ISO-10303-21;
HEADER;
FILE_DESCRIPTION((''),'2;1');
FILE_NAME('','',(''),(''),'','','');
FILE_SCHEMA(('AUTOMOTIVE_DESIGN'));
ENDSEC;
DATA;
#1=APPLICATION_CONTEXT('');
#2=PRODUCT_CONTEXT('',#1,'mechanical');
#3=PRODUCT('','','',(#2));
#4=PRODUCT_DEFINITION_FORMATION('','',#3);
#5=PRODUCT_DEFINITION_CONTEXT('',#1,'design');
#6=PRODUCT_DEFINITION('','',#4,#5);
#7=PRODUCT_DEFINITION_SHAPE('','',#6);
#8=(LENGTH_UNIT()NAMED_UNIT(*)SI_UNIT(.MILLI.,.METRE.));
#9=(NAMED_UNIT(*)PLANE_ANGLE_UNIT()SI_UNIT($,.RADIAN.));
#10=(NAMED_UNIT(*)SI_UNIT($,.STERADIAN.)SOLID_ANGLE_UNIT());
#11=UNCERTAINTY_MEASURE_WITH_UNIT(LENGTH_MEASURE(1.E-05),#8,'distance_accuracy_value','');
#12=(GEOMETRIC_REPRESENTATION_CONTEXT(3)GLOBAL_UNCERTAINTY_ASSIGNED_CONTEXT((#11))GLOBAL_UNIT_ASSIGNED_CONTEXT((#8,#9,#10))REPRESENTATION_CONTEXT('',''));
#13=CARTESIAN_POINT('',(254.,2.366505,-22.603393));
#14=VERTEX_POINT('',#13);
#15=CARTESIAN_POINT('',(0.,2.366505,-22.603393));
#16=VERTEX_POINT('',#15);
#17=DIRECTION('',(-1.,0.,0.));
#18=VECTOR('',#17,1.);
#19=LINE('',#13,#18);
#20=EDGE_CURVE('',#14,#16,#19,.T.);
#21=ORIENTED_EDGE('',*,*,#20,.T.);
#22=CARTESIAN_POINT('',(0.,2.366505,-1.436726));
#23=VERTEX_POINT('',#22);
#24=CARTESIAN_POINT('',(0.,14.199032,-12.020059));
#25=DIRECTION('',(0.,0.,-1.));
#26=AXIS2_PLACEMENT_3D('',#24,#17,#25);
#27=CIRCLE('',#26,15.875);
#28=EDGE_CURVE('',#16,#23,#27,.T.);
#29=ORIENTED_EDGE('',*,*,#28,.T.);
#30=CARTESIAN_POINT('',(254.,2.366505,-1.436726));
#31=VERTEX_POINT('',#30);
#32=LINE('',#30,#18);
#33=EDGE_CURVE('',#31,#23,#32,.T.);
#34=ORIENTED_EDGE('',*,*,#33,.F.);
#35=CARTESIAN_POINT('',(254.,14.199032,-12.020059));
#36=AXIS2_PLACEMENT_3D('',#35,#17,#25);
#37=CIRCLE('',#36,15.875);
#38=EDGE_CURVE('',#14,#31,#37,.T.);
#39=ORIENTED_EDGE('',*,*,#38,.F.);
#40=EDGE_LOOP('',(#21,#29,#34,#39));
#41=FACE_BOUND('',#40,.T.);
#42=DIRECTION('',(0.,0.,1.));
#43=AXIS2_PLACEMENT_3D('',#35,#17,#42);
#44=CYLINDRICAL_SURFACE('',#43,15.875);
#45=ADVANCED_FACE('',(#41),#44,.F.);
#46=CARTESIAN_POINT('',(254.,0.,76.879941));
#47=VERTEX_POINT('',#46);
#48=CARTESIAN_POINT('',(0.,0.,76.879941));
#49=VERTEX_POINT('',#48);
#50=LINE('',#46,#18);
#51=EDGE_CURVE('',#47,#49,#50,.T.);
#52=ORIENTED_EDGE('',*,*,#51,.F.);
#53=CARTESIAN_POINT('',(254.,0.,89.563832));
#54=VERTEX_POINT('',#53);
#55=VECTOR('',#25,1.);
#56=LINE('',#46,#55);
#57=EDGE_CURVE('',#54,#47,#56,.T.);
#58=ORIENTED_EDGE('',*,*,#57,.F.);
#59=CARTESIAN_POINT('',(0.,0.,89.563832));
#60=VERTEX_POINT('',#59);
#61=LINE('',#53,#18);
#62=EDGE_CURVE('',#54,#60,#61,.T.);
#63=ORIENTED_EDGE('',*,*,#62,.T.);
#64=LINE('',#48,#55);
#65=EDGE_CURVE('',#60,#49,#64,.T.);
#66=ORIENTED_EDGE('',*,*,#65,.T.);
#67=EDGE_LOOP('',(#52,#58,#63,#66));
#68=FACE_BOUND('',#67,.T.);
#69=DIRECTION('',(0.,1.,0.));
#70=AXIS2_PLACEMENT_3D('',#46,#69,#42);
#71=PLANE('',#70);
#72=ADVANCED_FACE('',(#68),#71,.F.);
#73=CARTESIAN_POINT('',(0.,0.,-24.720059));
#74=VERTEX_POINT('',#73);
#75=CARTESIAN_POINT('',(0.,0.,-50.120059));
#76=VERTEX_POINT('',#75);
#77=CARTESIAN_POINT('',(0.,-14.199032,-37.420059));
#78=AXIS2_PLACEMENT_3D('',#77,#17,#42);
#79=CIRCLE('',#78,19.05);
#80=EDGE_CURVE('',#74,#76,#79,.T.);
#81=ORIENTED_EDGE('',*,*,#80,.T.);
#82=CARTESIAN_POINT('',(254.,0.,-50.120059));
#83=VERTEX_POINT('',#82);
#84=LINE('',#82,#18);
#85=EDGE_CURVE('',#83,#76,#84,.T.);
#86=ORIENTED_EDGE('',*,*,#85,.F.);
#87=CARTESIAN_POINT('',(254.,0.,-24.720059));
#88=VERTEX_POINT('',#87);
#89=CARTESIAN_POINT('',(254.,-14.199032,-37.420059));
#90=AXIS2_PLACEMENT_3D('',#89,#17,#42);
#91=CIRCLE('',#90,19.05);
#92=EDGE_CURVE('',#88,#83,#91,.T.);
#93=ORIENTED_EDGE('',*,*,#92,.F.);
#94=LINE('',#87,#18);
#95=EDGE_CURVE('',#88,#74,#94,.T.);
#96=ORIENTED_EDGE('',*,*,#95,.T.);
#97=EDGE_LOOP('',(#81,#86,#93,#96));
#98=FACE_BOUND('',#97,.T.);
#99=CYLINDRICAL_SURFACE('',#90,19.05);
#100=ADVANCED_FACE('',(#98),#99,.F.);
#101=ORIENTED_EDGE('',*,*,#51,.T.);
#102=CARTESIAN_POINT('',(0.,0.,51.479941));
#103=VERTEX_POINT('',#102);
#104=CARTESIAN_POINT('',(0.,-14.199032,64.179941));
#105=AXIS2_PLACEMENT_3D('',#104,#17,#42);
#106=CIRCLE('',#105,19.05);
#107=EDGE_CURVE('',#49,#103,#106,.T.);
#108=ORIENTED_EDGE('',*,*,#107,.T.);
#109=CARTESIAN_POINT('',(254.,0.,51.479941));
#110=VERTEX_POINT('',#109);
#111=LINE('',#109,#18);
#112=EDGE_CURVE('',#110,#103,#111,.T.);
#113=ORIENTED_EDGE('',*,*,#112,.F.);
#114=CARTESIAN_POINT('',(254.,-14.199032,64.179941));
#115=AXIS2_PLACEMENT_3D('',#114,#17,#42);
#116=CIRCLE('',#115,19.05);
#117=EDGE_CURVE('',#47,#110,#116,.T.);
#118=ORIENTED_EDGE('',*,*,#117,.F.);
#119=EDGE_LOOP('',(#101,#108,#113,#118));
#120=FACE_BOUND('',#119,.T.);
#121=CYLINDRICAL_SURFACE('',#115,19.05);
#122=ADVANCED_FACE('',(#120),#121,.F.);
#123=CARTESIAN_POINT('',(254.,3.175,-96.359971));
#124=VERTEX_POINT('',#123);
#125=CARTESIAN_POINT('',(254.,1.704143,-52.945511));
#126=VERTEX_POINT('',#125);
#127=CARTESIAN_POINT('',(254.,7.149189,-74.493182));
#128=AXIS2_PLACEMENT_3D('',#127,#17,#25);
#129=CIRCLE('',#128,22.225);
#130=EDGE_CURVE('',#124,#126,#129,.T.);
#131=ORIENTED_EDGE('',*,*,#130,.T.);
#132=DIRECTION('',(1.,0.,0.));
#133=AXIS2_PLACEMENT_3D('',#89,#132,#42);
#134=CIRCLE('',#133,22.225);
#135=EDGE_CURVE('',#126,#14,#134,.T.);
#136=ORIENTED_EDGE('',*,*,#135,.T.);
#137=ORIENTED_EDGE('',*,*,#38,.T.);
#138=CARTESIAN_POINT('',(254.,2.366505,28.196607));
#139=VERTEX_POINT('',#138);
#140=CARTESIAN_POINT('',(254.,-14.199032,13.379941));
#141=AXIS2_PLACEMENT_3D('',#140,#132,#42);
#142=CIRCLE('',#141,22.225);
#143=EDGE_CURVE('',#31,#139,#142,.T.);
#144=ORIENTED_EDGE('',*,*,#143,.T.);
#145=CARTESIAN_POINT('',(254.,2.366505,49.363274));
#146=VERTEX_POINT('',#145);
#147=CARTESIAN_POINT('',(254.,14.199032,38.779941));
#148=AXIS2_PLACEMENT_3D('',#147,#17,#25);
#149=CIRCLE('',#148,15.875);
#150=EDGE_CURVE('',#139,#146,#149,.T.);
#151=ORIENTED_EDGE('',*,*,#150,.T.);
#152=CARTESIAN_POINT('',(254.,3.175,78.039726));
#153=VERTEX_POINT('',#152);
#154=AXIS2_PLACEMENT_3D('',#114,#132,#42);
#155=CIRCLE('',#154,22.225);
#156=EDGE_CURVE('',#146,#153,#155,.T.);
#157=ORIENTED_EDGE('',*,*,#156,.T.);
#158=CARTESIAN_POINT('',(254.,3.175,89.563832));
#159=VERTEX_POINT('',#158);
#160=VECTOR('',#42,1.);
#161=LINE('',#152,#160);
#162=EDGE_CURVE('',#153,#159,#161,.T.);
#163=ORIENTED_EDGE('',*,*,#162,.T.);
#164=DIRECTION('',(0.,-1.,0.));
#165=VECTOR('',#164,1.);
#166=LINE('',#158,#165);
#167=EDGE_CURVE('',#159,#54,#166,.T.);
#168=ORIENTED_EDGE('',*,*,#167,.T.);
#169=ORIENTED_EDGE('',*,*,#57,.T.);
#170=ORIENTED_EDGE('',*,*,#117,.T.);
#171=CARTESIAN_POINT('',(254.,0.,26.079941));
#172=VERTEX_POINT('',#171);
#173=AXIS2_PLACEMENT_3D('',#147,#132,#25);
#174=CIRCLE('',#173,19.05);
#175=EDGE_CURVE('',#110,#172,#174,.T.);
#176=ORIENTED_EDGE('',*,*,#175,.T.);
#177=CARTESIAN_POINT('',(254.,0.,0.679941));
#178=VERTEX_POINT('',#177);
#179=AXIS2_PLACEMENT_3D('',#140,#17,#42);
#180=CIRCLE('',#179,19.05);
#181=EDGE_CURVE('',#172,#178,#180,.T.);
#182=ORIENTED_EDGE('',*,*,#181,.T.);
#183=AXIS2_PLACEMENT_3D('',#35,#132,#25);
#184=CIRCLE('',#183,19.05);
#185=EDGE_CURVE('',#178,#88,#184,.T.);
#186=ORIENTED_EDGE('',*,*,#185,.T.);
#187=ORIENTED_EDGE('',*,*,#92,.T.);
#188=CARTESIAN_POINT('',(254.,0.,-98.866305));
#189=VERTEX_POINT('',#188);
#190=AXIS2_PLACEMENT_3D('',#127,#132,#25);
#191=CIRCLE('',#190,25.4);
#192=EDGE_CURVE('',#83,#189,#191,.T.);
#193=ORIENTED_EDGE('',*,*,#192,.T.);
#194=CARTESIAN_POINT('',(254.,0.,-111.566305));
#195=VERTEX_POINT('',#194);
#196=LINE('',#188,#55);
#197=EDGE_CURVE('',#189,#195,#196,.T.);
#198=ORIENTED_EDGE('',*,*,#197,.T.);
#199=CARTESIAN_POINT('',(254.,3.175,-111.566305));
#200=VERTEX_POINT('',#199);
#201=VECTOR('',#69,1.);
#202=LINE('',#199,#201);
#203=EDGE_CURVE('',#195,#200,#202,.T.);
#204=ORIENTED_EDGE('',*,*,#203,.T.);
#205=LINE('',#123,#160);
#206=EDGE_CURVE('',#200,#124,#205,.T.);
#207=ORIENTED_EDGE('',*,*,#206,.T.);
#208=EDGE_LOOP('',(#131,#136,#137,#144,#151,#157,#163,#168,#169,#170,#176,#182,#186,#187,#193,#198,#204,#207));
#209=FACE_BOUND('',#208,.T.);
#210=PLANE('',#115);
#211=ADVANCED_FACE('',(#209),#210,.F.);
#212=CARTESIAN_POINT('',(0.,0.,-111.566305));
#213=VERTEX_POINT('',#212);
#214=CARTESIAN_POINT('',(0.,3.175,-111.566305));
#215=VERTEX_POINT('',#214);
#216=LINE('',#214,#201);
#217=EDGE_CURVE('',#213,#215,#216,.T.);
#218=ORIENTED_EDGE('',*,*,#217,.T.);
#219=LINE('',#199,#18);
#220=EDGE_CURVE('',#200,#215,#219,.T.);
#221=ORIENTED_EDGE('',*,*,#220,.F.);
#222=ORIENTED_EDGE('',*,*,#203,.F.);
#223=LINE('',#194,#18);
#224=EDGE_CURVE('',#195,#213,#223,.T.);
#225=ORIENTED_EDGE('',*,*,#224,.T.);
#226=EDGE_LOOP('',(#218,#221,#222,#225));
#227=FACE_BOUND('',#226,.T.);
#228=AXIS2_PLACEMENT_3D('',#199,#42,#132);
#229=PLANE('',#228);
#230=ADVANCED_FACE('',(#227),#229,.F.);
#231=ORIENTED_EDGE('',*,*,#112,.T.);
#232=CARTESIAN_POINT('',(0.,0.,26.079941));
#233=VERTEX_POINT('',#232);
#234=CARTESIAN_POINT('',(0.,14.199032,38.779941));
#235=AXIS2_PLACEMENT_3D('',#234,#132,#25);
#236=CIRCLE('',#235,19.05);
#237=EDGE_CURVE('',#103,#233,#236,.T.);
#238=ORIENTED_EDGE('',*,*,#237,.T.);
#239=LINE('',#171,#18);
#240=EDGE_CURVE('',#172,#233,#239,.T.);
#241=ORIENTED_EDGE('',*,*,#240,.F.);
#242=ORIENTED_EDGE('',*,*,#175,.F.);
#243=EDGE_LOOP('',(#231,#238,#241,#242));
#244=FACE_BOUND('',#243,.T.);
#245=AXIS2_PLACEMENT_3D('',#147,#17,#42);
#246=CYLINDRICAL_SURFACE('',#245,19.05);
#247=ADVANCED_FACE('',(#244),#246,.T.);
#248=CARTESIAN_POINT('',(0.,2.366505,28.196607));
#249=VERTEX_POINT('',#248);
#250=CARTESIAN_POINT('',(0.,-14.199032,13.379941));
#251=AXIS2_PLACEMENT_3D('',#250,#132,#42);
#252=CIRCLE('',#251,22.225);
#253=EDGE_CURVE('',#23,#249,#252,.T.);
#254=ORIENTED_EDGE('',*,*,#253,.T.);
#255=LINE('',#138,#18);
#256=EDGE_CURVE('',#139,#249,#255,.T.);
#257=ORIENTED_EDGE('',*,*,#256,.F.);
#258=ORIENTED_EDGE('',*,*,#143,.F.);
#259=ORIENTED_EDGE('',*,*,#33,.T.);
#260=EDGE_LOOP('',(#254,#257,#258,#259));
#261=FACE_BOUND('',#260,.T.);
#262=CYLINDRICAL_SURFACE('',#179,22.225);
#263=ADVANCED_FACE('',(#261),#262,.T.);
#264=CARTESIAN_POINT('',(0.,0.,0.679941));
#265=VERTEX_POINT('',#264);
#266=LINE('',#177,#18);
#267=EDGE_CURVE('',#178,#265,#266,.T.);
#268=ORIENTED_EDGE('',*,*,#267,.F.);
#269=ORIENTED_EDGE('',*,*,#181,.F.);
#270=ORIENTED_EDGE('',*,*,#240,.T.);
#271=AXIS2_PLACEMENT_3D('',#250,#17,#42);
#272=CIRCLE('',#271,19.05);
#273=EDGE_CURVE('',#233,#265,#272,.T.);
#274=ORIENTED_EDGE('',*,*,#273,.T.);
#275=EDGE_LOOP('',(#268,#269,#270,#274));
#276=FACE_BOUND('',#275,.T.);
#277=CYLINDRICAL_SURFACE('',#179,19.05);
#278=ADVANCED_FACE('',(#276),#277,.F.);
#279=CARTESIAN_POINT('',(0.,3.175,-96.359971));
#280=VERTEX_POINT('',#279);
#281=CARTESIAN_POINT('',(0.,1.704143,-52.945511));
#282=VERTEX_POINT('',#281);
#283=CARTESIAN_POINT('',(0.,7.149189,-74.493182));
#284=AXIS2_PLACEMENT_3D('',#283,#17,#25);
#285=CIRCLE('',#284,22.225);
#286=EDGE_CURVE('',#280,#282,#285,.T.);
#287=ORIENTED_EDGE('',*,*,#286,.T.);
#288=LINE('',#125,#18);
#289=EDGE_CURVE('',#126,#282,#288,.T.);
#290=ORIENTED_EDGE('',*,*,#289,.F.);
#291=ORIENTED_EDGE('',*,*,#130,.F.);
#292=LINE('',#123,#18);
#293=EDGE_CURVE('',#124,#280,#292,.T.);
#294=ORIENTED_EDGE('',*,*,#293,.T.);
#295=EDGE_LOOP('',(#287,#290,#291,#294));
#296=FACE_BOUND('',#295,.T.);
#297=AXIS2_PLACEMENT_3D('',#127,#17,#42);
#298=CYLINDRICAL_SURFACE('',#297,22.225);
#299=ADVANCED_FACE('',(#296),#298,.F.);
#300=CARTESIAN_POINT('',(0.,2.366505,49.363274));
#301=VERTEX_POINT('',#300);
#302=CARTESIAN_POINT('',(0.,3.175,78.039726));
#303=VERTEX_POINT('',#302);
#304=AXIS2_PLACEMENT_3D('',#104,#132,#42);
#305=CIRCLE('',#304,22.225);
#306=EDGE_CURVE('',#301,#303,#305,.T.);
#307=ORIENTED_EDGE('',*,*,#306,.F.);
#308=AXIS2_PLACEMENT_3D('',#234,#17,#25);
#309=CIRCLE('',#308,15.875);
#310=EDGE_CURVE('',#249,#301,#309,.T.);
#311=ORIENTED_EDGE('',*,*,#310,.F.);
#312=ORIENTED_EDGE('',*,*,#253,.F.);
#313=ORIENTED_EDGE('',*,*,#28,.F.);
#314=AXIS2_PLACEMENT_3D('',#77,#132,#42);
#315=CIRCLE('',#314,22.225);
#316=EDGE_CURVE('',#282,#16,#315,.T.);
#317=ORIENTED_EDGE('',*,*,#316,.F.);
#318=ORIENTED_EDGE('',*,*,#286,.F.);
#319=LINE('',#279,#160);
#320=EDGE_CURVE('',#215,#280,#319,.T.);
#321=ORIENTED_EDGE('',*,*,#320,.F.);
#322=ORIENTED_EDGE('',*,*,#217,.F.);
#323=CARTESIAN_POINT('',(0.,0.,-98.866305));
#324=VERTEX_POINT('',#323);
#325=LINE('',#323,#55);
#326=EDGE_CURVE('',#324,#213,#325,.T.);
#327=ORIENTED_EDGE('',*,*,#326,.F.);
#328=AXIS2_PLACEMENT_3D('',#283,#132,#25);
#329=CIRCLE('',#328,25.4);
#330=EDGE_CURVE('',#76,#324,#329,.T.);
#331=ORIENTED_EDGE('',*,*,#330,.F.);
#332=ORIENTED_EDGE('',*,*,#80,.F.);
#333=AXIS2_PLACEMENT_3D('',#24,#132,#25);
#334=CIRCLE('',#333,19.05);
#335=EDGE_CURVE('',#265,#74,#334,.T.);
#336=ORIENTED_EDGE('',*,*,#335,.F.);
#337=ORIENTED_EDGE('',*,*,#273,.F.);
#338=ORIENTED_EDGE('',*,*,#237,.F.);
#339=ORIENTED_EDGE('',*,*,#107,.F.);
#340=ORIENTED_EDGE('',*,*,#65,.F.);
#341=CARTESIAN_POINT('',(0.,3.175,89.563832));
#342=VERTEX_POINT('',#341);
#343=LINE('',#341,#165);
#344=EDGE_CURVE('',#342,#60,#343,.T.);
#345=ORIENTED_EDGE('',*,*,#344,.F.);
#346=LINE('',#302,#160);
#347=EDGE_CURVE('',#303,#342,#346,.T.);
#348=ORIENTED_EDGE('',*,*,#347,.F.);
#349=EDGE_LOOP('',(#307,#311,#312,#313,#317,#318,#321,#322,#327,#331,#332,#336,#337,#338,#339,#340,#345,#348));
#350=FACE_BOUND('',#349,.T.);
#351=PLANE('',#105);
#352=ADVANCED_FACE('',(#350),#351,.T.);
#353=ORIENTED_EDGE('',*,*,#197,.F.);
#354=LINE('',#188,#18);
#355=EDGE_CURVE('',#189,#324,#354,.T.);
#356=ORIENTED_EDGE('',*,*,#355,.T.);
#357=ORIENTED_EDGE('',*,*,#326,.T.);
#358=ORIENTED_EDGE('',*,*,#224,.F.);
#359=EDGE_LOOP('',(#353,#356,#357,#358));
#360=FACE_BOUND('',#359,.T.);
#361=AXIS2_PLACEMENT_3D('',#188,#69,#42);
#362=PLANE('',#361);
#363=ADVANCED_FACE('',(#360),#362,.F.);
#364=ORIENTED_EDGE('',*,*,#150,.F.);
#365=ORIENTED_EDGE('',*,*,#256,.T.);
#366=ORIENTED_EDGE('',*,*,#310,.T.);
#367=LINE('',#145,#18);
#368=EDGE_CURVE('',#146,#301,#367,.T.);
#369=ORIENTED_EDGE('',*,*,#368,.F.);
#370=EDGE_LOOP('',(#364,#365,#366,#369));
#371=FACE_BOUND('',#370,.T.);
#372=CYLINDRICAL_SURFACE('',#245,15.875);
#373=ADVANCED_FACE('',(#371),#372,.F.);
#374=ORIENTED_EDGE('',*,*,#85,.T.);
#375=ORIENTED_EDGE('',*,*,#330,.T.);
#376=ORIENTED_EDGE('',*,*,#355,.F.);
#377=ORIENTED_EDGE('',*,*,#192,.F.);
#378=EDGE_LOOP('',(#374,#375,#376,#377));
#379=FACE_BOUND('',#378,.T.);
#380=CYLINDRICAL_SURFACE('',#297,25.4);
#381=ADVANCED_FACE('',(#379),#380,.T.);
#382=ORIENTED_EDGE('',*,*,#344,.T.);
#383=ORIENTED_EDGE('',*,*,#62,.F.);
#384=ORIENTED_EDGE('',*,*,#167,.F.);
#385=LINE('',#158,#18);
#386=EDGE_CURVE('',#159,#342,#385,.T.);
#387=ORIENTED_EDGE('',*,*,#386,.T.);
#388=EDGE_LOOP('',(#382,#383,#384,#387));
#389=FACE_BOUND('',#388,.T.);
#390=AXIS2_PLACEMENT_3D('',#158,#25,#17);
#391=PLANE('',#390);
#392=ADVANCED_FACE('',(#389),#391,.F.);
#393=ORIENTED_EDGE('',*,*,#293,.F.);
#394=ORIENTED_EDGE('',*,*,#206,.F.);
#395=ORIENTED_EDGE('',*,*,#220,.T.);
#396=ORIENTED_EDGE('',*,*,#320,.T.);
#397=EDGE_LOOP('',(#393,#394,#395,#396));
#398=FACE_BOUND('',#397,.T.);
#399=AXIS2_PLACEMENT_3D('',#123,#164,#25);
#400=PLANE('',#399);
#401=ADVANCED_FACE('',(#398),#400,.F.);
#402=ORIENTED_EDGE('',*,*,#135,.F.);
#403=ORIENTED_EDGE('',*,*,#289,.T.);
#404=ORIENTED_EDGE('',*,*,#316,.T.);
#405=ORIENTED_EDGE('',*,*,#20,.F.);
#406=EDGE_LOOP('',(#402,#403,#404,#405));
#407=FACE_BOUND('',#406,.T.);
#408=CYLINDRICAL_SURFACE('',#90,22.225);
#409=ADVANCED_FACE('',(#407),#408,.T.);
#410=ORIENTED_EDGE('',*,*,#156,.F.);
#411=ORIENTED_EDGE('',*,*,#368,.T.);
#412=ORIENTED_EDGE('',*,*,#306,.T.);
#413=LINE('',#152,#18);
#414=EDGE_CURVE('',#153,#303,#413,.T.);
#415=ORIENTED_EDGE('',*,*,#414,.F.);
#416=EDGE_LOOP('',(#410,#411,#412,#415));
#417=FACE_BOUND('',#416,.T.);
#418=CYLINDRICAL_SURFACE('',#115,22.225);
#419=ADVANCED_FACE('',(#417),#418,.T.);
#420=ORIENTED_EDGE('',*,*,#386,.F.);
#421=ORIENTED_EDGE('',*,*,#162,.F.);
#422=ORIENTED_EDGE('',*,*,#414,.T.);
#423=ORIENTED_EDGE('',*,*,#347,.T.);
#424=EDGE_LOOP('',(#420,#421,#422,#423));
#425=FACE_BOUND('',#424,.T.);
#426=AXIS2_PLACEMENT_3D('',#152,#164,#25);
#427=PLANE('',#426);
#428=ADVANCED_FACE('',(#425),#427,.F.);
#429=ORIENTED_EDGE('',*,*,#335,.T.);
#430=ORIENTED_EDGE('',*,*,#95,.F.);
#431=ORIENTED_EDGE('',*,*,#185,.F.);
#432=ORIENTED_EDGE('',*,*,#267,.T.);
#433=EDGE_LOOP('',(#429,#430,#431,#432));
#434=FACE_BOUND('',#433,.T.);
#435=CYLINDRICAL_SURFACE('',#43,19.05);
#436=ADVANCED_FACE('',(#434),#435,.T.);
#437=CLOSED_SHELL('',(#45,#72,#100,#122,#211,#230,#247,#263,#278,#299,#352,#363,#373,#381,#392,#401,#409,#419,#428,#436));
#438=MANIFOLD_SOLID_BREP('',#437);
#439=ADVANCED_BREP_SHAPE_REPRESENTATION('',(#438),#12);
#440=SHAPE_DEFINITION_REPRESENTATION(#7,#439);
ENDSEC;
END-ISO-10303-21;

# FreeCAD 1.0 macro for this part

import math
import FreeCAD as App
import Part
import Sketcher
Q = App.Units.Quantity

doc = App.newDocument("Part")
body = doc.addObject("PartDesign::Body", "Body")

sketch1 = body.newObject("Sketcher::SketchObject", "Sketch")
sketch1.AttachmentSupport = (doc.getObject("YZ_Plane"), [""])
sketch1.MapMode = "FlatFace"
sketch1.addGeometry([
    Part.LineSegment(App.Vector(0, 89.563832, 0), App.Vector(0, 76.879941, 0)),
    Part.ArcOfCircle(Part.Circle(App.Vector(-14.199032, 64.179941, 0), App.Vector(0, 0, 1), 19.05), math.radians(-41.810315), math.radians(41.810315)),
    Part.ArcOfCircle(Part.Circle(App.Vector(14.199032, 38.779941, 0), App.Vector(0, 0, 1), 19.05), math.radians(138.189685), math.radians(221.810315)),
    Part.ArcOfCircle(Part.Circle(App.Vector(-14.199032, 13.379941, 0), App.Vector(0, 0, 1), 19.05), math.radians(-41.810315), math.radians(41.810315)),
    Part.ArcOfCircle(Part.Circle(App.Vector(14.199032, -12.020059, 0), App.Vector(0, 0, 1), 19.05), math.radians(138.189685), math.radians(221.810315)),
    Part.ArcOfCircle(Part.Circle(App.Vector(-14.199032, -37.420059, 0), App.Vector(0, 0, 1), 19.05), math.radians(-41.810315), math.radians(41.810315)),
    Part.ArcOfCircle(Part.Circle(App.Vector(7.149189, -74.493182, 0), App.Vector(0, 0, 1), 25.4), math.radians(106.347607), math.radians(253.652393)),
    Part.LineSegment(App.Vector(0, -98.866305, 0), App.Vector(0, -111.566305, 0)),
    Part.LineSegment(App.Vector(0, -111.566305, 0), App.Vector(3.175, -111.566305, 0)),
    Part.LineSegment(App.Vector(3.175, -111.566305, 0), App.Vector(3.175, -96.359971, 0)),
    Part.ArcOfCircle(Part.Circle(App.Vector(7.149189, -74.493182, 0), App.Vector(0, 0, 1), 22.225), math.radians(104.181623), math.radians(259.699189)),
    Part.ArcOfCircle(Part.Circle(App.Vector(-14.199032, -37.420059, 0), App.Vector(0, 0, 1), 22.225), math.radians(-44.311428), math.radians(41.810315)),
    Part.ArcOfCircle(Part.Circle(App.Vector(14.199032, -12.020059, 0), App.Vector(0, 0, 1), 15.875), math.radians(138.189685), math.radians(221.810315)),
    Part.ArcOfCircle(Part.Circle(App.Vector(-14.199032, 13.379941, 0), App.Vector(0, 0, 1), 22.225), math.radians(-41.810315), math.radians(41.810315)),
    Part.ArcOfCircle(Part.Circle(App.Vector(14.199032, 38.779941, 0), App.Vector(0, 0, 1), 15.875), math.radians(138.189685), math.radians(221.810315)),
    Part.ArcOfCircle(Part.Circle(App.Vector(-14.199032, 64.179941, 0), App.Vector(0, 0, 1), 22.225), math.radians(-41.810315), math.radians(38.580413)),
    Part.LineSegment(App.Vector(3.175, 78.039726, 0), App.Vector(3.175, 89.563832, 0)),
    Part.LineSegment(App.Vector(3.175, 89.563832, 0), App.Vector(0, 89.563832, 0)),
], False)
sketch1.addConstraint([
    Sketcher.Constraint("Coincident", 0, 2, 1, 2),
    Sketcher.Constraint("Tangent", 1, 1, 2, 1),
    Sketcher.Constraint("Tangent", 2, 2, 3, 2),
    Sketcher.Constraint("Tangent", 3, 1, 4, 1),
    Sketcher.Constraint("Tangent", 4, 2, 5, 2),
    Sketcher.Constraint("Coincident", 5, 1, 6, 1),
    Sketcher.Constraint("Coincident", 6, 2, 7, 1),
    Sketcher.Constraint("Coincident", 7, 2, 8, 1),
    Sketcher.Constraint("Coincident", 8, 2, 9, 1),
    Sketcher.Constraint("Coincident", 9, 2, 10, 2),
    Sketcher.Constraint("Coincident", 10, 1, 11, 1),
    Sketcher.Constraint("Tangent", 11, 2, 12, 2),
    Sketcher.Constraint("Tangent", 12, 1, 13, 1),
    Sketcher.Constraint("Tangent", 13, 2, 14, 2),
    Sketcher.Constraint("Tangent", 14, 1, 15, 1),
    Sketcher.Constraint("Coincident", 15, 2, 16, 1),
    Sketcher.Constraint("Coincident", 16, 2, 17, 1),
    Sketcher.Constraint("Coincident", 17, 2, 0, 1),
    Sketcher.Constraint("Vertical", 0),
    Sketcher.Constraint("Vertical", 7),
    Sketcher.Constraint("Horizontal", 8),
    Sketcher.Constraint("Vertical", 9),
    Sketcher.Constraint("Vertical", 16),
    Sketcher.Constraint("Horizontal", 17),
    Sketcher.Constraint("Coincident", 10, 3, 6, 3),
    Sketcher.Constraint("Coincident", 11, 3, 5, 3),
    Sketcher.Constraint("Coincident", 12, 3, 4, 3),
    Sketcher.Constraint("Coincident", 13, 3, 3, 3),
    Sketcher.Constraint("Coincident", 14, 3, 2, 3),
    Sketcher.Constraint("Coincident", 15, 3, 1, 3),
    Sketcher.Constraint("Equal", 1, 2),
    Sketcher.Constraint("Equal", 2, 3),
    Sketcher.Constraint("Equal", 3, 4),
    Sketcher.Constraint("Equal", 4, 5),
    Sketcher.Constraint("Equal", 10, 11),
    Sketcher.Constraint("PointOnObject", 0, 2, -2),
    Sketcher.Constraint("PointOnObject", 1, 1, -2),
    Sketcher.Constraint("PointOnObject", 2, 2, -2),
    Sketcher.Constraint("PointOnObject", 3, 1, -2),
    Sketcher.Constraint("PointOnObject", 4, 2, -2),
    Sketcher.Constraint("PointOnObject", 5, 1, -2),
    Sketcher.Constraint("PointOnObject", 6, 2, -2),
    Sketcher.Constraint("Vertical", 9, 2, 15, 2),
    Sketcher.Constraint("Radius", 6, Q("1 in")),
    Sketcher.Constraint("Radius", 1, Q("0.75 in")),
    Sketcher.Constraint("DistanceY", 7, 2, 7, 1, Q("0.5 in")),
    Sketcher.Constraint("Radius", 10, Q("0.875 in")),
    Sketcher.Constraint("DistanceY", 2, 3, 1, 3, Q("1 in")),
    Sketcher.Constraint("DistanceX", 8, 1, 8, 2, Q("0.125 in")),
    Sketcher.Constraint("DistanceY", 0, 2, 0, 1, Q("12.683891 mm")),
    Sketcher.Constraint("DistanceY", 9, 1, 9, 2, Q("15.206334 mm")),
    Sketcher.Constraint("DistanceY", -1, 1, 1, 3, Q("64.179941 mm")),
])
pad1 = body.newObject("PartDesign::Pad", "Pad")
pad1.Profile = sketch1
pad1.Length = Q("10 in")

doc.recompute()
